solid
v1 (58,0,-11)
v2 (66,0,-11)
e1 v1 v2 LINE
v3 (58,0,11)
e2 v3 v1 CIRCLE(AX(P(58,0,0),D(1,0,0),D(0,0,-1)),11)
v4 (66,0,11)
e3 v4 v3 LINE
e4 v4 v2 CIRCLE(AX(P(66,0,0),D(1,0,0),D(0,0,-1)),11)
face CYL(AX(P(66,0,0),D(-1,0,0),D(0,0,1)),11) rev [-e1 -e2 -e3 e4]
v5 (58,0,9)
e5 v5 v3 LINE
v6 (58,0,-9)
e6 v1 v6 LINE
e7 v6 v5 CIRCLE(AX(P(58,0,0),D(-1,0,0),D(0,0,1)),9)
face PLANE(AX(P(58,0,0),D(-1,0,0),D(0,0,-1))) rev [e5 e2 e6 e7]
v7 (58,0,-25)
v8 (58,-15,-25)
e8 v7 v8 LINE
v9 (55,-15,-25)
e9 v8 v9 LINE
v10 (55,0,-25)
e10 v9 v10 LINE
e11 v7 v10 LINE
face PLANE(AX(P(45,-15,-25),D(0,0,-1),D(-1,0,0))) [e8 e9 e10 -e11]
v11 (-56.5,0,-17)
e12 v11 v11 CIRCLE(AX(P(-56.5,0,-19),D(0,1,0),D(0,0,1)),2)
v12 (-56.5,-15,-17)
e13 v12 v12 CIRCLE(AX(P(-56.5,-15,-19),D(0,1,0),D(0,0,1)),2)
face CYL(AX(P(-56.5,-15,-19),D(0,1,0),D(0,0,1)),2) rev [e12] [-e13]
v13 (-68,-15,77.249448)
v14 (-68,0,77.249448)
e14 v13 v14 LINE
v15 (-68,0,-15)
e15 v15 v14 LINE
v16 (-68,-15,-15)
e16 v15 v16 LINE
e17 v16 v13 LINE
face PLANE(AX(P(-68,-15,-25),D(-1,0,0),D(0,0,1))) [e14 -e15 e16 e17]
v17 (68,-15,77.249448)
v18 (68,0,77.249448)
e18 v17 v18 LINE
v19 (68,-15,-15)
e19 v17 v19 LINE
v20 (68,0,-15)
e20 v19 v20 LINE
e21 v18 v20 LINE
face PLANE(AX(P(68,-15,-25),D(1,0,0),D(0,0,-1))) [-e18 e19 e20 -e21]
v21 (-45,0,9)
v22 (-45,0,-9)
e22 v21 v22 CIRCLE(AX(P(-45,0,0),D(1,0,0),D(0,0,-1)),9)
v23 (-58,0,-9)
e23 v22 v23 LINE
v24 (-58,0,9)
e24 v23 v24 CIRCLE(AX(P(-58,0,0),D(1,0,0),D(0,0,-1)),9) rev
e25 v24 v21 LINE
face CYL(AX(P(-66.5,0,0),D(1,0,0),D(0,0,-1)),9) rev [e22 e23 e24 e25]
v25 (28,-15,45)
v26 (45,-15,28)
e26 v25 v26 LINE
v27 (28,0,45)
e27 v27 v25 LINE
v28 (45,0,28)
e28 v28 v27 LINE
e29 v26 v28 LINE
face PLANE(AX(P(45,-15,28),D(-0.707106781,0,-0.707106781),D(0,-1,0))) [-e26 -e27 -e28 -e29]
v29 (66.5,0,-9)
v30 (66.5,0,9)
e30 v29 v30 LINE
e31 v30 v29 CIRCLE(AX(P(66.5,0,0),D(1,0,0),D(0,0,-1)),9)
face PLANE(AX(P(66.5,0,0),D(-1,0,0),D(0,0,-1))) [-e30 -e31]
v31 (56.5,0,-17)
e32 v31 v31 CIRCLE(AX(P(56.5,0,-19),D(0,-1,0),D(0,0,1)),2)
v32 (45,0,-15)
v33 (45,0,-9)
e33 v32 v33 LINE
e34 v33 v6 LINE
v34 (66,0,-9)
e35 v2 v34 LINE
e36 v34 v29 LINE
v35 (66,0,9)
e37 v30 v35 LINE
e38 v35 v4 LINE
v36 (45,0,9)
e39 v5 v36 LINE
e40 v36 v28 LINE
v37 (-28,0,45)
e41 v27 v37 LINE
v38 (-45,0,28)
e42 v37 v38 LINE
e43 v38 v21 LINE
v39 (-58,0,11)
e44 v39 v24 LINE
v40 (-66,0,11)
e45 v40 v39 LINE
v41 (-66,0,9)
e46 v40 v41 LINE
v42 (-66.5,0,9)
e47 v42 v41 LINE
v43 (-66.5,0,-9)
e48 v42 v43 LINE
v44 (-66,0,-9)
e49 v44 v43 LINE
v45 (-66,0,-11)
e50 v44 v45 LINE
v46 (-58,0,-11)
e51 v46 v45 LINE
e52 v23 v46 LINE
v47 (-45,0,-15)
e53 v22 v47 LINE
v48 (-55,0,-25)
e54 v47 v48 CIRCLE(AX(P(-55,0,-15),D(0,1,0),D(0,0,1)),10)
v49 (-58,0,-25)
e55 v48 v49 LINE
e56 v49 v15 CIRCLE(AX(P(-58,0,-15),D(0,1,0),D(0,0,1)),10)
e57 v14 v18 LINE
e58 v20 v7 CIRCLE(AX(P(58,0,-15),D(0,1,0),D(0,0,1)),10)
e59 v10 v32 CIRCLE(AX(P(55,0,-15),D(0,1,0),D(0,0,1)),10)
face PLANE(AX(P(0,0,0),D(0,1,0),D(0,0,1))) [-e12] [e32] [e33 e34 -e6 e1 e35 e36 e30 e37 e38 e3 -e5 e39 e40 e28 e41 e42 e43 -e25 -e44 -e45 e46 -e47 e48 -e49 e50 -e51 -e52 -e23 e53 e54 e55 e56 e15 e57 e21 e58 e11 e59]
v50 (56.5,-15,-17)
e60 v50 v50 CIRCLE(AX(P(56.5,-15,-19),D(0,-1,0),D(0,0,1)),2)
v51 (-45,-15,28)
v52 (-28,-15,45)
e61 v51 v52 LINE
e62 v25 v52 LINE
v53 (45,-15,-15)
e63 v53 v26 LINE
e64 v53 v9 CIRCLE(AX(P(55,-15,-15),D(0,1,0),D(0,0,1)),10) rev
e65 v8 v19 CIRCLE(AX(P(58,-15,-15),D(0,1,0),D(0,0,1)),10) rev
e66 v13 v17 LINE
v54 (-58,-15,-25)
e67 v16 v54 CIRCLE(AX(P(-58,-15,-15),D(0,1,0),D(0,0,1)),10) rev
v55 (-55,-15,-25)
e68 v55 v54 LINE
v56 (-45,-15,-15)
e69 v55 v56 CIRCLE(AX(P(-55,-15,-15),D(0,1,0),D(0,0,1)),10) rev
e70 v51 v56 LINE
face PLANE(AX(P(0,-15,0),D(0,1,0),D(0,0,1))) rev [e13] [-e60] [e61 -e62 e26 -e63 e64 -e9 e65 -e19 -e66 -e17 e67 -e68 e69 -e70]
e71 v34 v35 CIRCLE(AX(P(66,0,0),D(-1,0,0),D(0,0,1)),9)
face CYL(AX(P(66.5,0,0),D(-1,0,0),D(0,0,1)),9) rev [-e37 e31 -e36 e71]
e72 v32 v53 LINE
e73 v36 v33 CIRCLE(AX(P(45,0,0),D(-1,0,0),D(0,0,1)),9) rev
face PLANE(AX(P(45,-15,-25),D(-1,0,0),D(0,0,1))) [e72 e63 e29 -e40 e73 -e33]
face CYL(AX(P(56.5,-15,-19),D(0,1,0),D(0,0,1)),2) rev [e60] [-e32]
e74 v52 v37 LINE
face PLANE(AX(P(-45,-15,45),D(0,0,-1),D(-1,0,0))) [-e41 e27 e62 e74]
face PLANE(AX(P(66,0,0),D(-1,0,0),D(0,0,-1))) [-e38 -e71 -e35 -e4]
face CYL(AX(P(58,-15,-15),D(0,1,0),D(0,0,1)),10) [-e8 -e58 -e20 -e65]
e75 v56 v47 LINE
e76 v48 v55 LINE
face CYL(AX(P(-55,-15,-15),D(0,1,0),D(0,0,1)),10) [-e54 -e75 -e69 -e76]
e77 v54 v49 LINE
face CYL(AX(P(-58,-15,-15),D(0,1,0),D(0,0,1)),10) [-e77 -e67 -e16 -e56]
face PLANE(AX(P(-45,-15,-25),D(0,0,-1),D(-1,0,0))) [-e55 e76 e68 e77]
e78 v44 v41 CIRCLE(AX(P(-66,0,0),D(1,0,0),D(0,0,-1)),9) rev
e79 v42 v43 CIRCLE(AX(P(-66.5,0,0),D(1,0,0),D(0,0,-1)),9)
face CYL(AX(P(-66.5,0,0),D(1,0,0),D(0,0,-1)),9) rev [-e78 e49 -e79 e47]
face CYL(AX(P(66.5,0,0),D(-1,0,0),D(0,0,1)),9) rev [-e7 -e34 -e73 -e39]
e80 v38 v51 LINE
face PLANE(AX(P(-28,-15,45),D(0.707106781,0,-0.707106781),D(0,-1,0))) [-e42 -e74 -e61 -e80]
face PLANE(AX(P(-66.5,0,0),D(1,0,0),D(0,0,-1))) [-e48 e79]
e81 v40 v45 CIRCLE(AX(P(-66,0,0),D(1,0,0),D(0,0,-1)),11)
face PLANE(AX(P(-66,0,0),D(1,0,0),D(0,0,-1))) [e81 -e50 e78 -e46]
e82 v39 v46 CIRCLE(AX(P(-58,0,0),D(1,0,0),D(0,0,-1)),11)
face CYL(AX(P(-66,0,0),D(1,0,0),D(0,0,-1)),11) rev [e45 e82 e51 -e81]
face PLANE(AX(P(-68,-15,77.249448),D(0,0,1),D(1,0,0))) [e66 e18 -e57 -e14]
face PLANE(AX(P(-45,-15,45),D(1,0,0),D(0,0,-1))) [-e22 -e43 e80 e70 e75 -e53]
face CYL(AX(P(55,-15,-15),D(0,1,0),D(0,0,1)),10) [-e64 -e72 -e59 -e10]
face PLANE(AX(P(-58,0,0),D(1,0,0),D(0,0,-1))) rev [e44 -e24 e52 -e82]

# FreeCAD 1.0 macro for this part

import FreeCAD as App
import Part
import Sketcher
from FreeCAD import Vector


def edges_at(feature, points):
    """Names of the edges that pass closest to the given points."""
    edges = feature.Shape.Edges
    near = lambda p: min(range(len(edges)), key=lambda i: edges[i].distToShape(Part.Vertex(*p))[0])
    return sorted({f"Edge{near(p) + 1}" for p in points})

doc = App.newDocument("Part")
body = doc.addObject("PartDesign::Body", "Body")

sketch1 = body.newObject("Sketcher::SketchObject", "Sketch")
sketch1.AttachmentSupport = (doc.getObject("XZ_Plane"), [""])
sketch1.MapMode = "FlatFace"
sketch1.addGeometry([
    Part.LineSegment(Vector(-45, -25, 0), Vector(-68, -25, 0)),
    Part.LineSegment(Vector(-68, -25, 0), Vector(-68, 77.249448, 0)),
    Part.LineSegment(Vector(-68, 77.249448, 0), Vector(68, 77.249448, 0)),
    Part.LineSegment(Vector(68, 77.249448, 0), Vector(68, -25, 0)),
    Part.LineSegment(Vector(68, -25, 0), Vector(45, -25, 0)),
    Part.LineSegment(Vector(45, -25, 0), Vector(45, 45, 0)),
    Part.LineSegment(Vector(45, 45, 0), Vector(-45, 45, 0)),
    Part.LineSegment(Vector(-45, 45, 0), Vector(-45, -25, 0)),
], False)
sketch1.addConstraint([
    Sketcher.Constraint("Coincident", 0, 2, 1, 1),
    Sketcher.Constraint("Coincident", 1, 2, 2, 1),
    Sketcher.Constraint("Coincident", 2, 2, 3, 1),
    Sketcher.Constraint("Coincident", 3, 2, 4, 1),
    Sketcher.Constraint("Coincident", 4, 2, 5, 1),
    Sketcher.Constraint("Coincident", 5, 2, 6, 1),
    Sketcher.Constraint("Coincident", 6, 2, 7, 1),
    Sketcher.Constraint("Coincident", 7, 2, 0, 1),
    Sketcher.Constraint("Horizontal", 0),
    Sketcher.Constraint("Vertical", 1),
    Sketcher.Constraint("Horizontal", 2),
    Sketcher.Constraint("Vertical", 3),
    Sketcher.Constraint("Horizontal", 4),
    Sketcher.Constraint("Vertical", 5),
    Sketcher.Constraint("Horizontal", 6),
    Sketcher.Constraint("Vertical", 7),
    Sketcher.Constraint("Symmetric", 0, 2, 3, 2, -2),
    Sketcher.Constraint("Equal", 0, 4),
    Sketcher.Constraint("DistanceX", 0, 2, 0, 1, 23.0),
    Sketcher.Constraint("DistanceX", 2, 1, 2, 2, 136.0),
    Sketcher.Constraint("DistanceY", 5, 1, 5, 2, 70.0),
    Sketcher.Constraint("DistanceY", 0, 2, -1, 1, 25.0),
    Sketcher.Constraint("DistanceY", 1, 1, 1, 2, 102.249448),
])
pad1 = body.newObject("PartDesign::Pad", "Pad")
pad1.Profile = sketch1
pad1.Length = 15

sketch2 = body.newObject("Sketcher::SketchObject", "Sketch001")
sketch2.AttachmentSupport = (doc.getObject("YZ_Plane"), [""])
sketch2.MapMode = "FlatFace"
sketch2.addGeometry(Part.Circle(Vector(0, 0, 0), Vector(0, 0, 1), 9), False)
sketch2.addConstraint([
    Sketcher.Constraint("Coincident", 0, 3, -1, 1),
    Sketcher.Constraint("Diameter", 0, 18.0),
])
pocket1 = body.newObject("PartDesign::Pocket", "Pocket")
pocket1.Profile = sketch2
pocket1.Length = 66.5

sketch3 = body.newObject("Sketcher::SketchObject", "Sketch002")
sketch3.AttachmentSupport = (doc.getObject("YZ_Plane"), [""])
sketch3.MapMode = "FlatFace"
sketch3.AttachmentOffset = App.Placement(Vector(0, 0, -58), App.Rotation())
sketch3.addGeometry(Part.Circle(Vector(0, 0, 0), Vector(0, 0, 1), 11), False)
sketch3.addConstraint([
    Sketcher.Constraint("Coincident", 0, 3, -1, 1),
    Sketcher.Constraint("Diameter", 0, 22.0),
])
pocket2 = body.newObject("PartDesign::Pocket", "Pocket001")
pocket2.Profile = sketch3
pocket2.Length = 8
doc.recompute()

chamfer = body.newObject("PartDesign::Chamfer", "Chamfer")
chamfer.Base = (pocket2, edges_at(pocket2, [(-45, -7.5, 45), (45, -7.5, 45)]))
chamfer.Size = 17

sketch4 = body.newObject("Sketcher::SketchObject", "Sketch003")
sketch4.AttachmentSupport = (doc.getObject("XZ_Plane"), [""])
sketch4.MapMode = "FlatFace"
sketch4.addGeometry(Part.Circle(Vector(-56.5, -19, 0), Vector(0, 0, 1), 2), False)
sketch4.addConstraint([
    Sketcher.Constraint("Diameter", 0, 4.0),
    Sketcher.Constraint("DistanceY", 0, 3, -1, 1, 19.0),
    Sketcher.Constraint("DistanceX", 0, 3, -1, 1, 56.5),
])
pocket3 = body.newObject("PartDesign::Pocket", "Pocket002")
pocket3.Profile = sketch4
pocket3.Type = "ThroughAll"
pocket3.Reversed = True
doc.recompute()

fillet = body.newObject("PartDesign::Fillet", "Fillet")
fillet.Base = (pocket3, edges_at(pocket3, [
    (45, -7.5, -25),
    (68, -7.5, -25),
    (-68, -7.5, -25),
    (-45, -7.5, -25),
]))
fillet.Radius = 10
doc.recompute()

mirrored = body.newObject("PartDesign::Mirrored", "Mirrored")
mirrored.Originals = [pocket1, pocket2, pocket3]
mirrored.MirrorPlane = (doc.getObject("YZ_Plane"), [""])
body.Tip = mirrored

doc.recompute()
